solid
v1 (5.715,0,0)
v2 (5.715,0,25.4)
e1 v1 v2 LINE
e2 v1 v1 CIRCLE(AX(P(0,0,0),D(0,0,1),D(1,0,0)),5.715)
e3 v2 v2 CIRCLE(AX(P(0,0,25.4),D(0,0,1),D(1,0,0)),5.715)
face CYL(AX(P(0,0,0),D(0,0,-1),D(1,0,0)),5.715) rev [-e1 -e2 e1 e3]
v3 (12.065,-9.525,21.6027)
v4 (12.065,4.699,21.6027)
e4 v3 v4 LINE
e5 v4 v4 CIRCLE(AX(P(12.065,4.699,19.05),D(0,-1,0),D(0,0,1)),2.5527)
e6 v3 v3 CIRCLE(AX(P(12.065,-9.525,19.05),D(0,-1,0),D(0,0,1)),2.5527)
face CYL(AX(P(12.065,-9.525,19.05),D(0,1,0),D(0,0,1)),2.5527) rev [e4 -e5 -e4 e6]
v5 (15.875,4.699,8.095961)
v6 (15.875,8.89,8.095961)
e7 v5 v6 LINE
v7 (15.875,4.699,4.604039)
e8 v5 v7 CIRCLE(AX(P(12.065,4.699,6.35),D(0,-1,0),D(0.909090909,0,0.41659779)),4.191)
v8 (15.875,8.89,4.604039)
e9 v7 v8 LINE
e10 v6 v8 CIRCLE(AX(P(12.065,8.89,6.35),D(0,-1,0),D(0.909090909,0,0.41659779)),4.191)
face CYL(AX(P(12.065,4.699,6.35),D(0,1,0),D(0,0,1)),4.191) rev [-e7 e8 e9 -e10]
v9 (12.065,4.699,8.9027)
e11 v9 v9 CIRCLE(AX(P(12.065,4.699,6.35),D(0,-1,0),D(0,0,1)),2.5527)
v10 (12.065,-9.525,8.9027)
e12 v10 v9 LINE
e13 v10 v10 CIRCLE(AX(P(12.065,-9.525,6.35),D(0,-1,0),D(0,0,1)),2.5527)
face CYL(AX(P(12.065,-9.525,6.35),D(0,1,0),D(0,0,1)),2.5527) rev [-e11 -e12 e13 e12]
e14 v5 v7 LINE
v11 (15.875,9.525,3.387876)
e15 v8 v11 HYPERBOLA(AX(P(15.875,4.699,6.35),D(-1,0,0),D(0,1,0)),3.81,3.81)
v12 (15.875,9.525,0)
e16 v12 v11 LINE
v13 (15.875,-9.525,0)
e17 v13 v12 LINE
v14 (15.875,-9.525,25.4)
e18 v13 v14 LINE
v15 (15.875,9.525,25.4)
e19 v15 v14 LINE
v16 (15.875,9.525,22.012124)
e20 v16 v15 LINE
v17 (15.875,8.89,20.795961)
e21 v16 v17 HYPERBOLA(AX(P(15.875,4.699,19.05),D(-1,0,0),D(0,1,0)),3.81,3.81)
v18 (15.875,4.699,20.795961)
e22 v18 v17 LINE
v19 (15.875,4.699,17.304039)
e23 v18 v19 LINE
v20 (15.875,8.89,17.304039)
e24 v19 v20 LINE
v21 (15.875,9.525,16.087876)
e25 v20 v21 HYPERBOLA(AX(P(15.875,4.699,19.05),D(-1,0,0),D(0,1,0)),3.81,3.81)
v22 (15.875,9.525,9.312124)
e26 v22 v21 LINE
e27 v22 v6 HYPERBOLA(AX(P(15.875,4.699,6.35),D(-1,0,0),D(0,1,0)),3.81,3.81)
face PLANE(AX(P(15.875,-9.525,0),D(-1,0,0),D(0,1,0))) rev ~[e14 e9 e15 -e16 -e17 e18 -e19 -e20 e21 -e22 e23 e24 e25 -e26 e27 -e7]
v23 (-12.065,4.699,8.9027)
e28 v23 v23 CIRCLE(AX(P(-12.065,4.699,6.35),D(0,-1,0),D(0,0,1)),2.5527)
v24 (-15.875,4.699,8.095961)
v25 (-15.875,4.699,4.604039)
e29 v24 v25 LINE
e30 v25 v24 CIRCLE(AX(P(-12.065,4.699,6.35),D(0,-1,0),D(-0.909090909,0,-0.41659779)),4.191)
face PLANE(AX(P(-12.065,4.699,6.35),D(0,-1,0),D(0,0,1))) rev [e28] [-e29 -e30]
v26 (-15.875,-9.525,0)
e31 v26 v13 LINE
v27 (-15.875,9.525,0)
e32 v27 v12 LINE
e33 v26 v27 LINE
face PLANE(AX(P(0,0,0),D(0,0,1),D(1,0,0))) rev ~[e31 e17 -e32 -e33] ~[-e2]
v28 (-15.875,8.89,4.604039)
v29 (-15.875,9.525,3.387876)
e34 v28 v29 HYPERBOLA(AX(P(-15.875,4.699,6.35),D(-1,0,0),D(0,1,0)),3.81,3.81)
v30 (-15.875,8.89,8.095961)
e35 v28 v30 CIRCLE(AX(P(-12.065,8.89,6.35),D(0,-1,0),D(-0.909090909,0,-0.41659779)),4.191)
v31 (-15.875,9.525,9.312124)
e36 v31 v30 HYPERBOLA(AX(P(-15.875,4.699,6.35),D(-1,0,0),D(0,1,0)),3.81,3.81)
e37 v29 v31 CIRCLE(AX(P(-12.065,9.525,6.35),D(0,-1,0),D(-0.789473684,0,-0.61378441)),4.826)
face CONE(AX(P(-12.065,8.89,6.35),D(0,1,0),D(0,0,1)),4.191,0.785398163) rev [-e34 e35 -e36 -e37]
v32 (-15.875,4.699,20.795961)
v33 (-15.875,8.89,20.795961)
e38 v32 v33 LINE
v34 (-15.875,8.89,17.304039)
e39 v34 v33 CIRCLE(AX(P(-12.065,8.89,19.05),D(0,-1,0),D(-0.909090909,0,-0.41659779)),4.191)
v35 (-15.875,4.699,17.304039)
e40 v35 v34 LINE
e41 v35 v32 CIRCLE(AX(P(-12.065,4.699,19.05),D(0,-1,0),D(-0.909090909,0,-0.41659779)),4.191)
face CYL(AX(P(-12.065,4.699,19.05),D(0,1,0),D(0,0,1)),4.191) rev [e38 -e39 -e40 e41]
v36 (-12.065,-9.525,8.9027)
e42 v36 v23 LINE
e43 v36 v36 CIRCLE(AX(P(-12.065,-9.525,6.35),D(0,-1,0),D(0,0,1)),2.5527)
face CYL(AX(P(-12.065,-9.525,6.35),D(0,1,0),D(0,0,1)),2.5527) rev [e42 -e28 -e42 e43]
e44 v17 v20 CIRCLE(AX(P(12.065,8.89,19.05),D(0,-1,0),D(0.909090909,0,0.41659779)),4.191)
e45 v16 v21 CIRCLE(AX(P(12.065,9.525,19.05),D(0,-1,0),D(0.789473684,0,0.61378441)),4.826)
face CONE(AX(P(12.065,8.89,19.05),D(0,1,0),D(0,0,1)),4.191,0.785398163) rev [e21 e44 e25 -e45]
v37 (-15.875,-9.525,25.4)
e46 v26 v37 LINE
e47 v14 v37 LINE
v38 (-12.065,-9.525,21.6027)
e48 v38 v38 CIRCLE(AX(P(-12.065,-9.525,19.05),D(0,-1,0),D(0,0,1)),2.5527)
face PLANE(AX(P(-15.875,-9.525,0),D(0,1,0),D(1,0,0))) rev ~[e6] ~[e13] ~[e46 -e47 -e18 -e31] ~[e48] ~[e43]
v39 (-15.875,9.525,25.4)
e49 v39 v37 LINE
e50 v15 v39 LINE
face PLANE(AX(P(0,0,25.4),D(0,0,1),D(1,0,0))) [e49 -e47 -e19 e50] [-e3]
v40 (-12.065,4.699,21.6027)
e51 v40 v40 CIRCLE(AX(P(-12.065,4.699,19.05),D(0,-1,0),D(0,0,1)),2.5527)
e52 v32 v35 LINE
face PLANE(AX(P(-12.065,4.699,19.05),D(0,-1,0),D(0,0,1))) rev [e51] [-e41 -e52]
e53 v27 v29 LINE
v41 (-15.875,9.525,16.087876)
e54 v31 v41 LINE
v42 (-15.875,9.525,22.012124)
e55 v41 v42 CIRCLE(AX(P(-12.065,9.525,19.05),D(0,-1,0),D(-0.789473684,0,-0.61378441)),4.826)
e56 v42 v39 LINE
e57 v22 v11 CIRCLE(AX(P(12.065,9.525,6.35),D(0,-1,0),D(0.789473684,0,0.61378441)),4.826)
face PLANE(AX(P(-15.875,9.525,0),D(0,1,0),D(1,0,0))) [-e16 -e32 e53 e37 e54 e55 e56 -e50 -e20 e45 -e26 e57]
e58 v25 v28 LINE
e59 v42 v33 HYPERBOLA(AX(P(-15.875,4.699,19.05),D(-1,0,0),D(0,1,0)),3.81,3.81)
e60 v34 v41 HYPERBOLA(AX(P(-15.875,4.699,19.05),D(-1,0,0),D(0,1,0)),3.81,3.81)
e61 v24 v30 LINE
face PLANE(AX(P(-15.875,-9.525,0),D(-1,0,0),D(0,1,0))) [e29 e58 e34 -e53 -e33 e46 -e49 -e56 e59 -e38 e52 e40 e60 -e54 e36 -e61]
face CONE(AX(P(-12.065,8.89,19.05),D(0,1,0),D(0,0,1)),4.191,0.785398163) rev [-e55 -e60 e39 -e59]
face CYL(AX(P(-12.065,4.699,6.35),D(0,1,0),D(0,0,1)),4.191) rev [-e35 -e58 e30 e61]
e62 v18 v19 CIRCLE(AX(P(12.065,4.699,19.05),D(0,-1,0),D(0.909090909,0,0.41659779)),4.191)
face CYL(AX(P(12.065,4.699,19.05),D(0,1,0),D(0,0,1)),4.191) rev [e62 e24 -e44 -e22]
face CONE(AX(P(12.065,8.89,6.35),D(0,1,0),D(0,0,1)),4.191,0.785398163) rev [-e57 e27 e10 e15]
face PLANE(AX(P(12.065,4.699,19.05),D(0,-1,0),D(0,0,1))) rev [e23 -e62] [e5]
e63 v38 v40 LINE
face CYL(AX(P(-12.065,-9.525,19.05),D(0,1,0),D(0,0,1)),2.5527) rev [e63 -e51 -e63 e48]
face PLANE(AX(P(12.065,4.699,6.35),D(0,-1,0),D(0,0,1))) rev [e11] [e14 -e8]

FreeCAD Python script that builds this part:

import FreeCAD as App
import Part
import Sketcher
from FreeCAD import Vector
Q = App.Units.Quantity

doc = App.newDocument("Part")
body = doc.addObject("PartDesign::Body", "Body")

sketch1 = doc.addObject("Sketcher::SketchObject", "Sketch")
body.addObject(sketch1)
sketch1.AttachmentSupport = (doc.XY_Plane, [""])
sketch1.MapMode = "FlatFace"
sketch1.addGeometry(Part.Circle(Vector(0, 0, 0), Vector(0, 0, 1), 19), False)
sketch1.addGeometry(Part.Circle(Vector(0, 0, 0), Vector(0, 0, 1), 6), False)
sketch1.addConstraint(Sketcher.Constraint("Coincident", 0, 3, -1, 1))
sketch1.addConstraint(Sketcher.Constraint("Coincident", 1, 3, -1, 1))
sketch1.addConstraint(Sketcher.Constraint("Diameter", 0, Q("1.47 in")))
sketch1.addConstraint(Sketcher.Constraint("Diameter", 1, Q("0.45 in")))
pad1 = doc.addObject("PartDesign::Pad", "Pad")
body.addObject(pad1)
pad1.Profile = sketch1
pad1.Length = Q("1 in")

sketch2 = doc.addObject("Sketcher::SketchObject", "Sketch001")
body.addObject(sketch2)
sketch2.AttachmentSupport = (doc.XY_Plane, [""])
sketch2.MapMode = "FlatFace"
sketch2.addGeometry(Part.Circle(Vector(0, 0, 0), Vector(0, 0, 1), 19), False)
sketch2.addGeometry(Part.LineSegment(Vector(16, -10, 0), Vector(-16, -10, 0)), False)
sketch2.addGeometry(Part.LineSegment(Vector(-16, -10, 0), Vector(-16, 10, 0)), False)
sketch2.addGeometry(Part.LineSegment(Vector(-16, 10, 0), Vector(16, 10, 0)), False)
sketch2.addGeometry(Part.LineSegment(Vector(16, 10, 0), Vector(16, -10, 0)), False)
sketch2.addConstraint(Sketcher.Constraint("Coincident", 1, 2, 2, 1))
sketch2.addConstraint(Sketcher.Constraint("Coincident", 2, 2, 3, 1))
sketch2.addConstraint(Sketcher.Constraint("Coincident", 3, 2, 4, 1))
sketch2.addConstraint(Sketcher.Constraint("Coincident", 4, 2, 1, 1))
sketch2.addConstraint(Sketcher.Constraint("Horizontal", 1))
sketch2.addConstraint(Sketcher.Constraint("Vertical", 2))
sketch2.addConstraint(Sketcher.Constraint("Horizontal", 3))
sketch2.addConstraint(Sketcher.Constraint("Vertical", 4))
sketch2.addConstraint(Sketcher.Constraint("Coincident", 0, 3, -1, 1))
sketch2.addConstraint(Sketcher.Constraint("Symmetric", 1, 2, 3, 2, -1, 1))
sketch2.addConstraint(Sketcher.Constraint("Diameter", 0, Q("1.47 in")))
sketch2.addConstraint(Sketcher.Constraint("DistanceX", 1, 2, 1, 1, Q("1.25 in")))
sketch2.addConstraint(Sketcher.Constraint("DistanceY", 2, 1, 2, 2, Q("0.75 in")))
pocket1 = doc.addObject("PartDesign::Pocket", "Pocket")
body.addObject(pocket1)
pocket1.Profile = sketch2
pocket1.Type = "ThroughAll"
pocket1.Reversed = True

sketch3 = doc.addObject("Sketcher::SketchObject", "Sketch002")
body.addObject(sketch3)
sketch3.AttachmentSupport = (doc.YZ_Plane, [""])
sketch3.MapMode = "FlatFace"
sketch3.AttachmentOffset = App.Placement(Vector(0, 0, 0.475 * 25.4), App.Rotation())
sketch3.addGeometry(Part.LineSegment(Vector(-9.5, 6.3, 0), Vector(9.5, 6.3, 0)), False)
sketch3.addGeometry(Part.LineSegment(Vector(9.5, 6.3, 0), Vector(9.5, 11.2, 0)), False)
sketch3.addGeometry(Part.LineSegment(Vector(9.5, 11.2, 0), Vector(8.9, 10.5, 0)), False)
sketch3.addGeometry(Part.LineSegment(Vector(8.9, 10.5, 0), Vector(4.7, 10.5, 0)), False)
sketch3.addGeometry(Part.LineSegment(Vector(4.7, 10.5, 0), Vector(4.7, 8.9, 0)), False)
sketch3.addGeometry(Part.LineSegment(Vector(4.7, 8.9, 0), Vector(-9.5, 8.9, 0)), False)
sketch3.addGeometry(Part.LineSegment(Vector(-9.5, 8.9, 0), Vector(-9.5, 6.3, 0)), False)
sketch3.addGeometry(Part.LineSegment(Vector(9.5, 6.3, 0), Vector(-9.5, 6.3, 0)), True)
sketch3.addConstraint(Sketcher.Constraint("Coincident", 0, 2, 1, 1))
sketch3.addConstraint(Sketcher.Constraint("Coincident", 1, 2, 2, 1))
sketch3.addConstraint(Sketcher.Constraint("Coincident", 2, 2, 3, 1))
sketch3.addConstraint(Sketcher.Constraint("Coincident", 3, 2, 4, 1))
sketch3.addConstraint(Sketcher.Constraint("Coincident", 4, 2, 5, 1))
sketch3.addConstraint(Sketcher.Constraint("Coincident", 5, 2, 6, 1))
sketch3.addConstraint(Sketcher.Constraint("Coincident", 6, 2, 0, 1))
sketch3.addConstraint(Sketcher.Constraint("Horizontal", 0))
sketch3.addConstraint(Sketcher.Constraint("Vertical", 1))
sketch3.addConstraint(Sketcher.Constraint("Horizontal", 3))
sketch3.addConstraint(Sketcher.Constraint("Vertical", 4))
sketch3.addConstraint(Sketcher.Constraint("Horizontal", 5))
sketch3.addConstraint(Sketcher.Constraint("Vertical", 6))
sketch3.addConstraint(Sketcher.Constraint("Horizontal", 7))
sketch3.addConstraint(Sketcher.Constraint("Coincident", 7, 1, 0, 2))
sketch3.addConstraint(Sketcher.Constraint("Vertical", 5, 2, 7, 2))
sketch3.addConstraint(Sketcher.Constraint("Angle", 2, Q("-135 deg")))
sketch3.addConstraint(Sketcher.Constraint("DistanceX", 0, 1, 0, 2, Q("0.75 in")))
sketch3.addConstraint(Sketcher.Constraint("DistanceX", 5, 2, 5, 1, Q("0.56 in")))
sketch3.addConstraint(Sketcher.Constraint("DistanceY", 1, 1, 1, 2, Q("0.19 in")))
sketch3.addConstraint(Sketcher.Constraint("DistanceX", 3, 2, 3, 1, Q("0.165 in")))
sketch3.addConstraint(Sketcher.Constraint("DistanceY", -1, 1, 0, 2, Q("0.25 in")))
sketch3.addConstraint(Sketcher.Constraint("DistanceX", -1, 1, 2, 2, Q("0.35 in")))
sketch3.addConstraint(Sketcher.Constraint("DistanceY", 4, 2, 4, 1, Q("0.0645 in")))
groove = doc.addObject("PartDesign::Groove", "Groove")
body.addObject(groove)
groove.Profile = sketch3
groove.ReferenceAxis = (sketch3, ["Axis0"])
groove.Angle = 360
doc.recompute()

linearpattern = doc.addObject("PartDesign::LinearPattern", "LinearPattern")
body.addObject(linearpattern)
linearpattern.Originals = [groove]
linearpattern.Direction = (doc.Z_Axis, [""])
linearpattern.Mode = "offset"
linearpattern.Offset = Q("0.5 in")
linearpattern.Occurrences = 2
body.Tip = linearpattern
doc.recompute()

datumline = doc.addObject("PartDesign::Line", "DatumLine")
body.addObject(datumline)
datumline.Placement = App.Placement(Vector(0, 0, 0), App.Rotation(Vector(0, 0, 1), Vector(-0.884918222, 0, 0.465746433)))
linearpattern2 = doc.addObject("PartDesign::LinearPattern", "LinearPattern001")
body.addObject(linearpattern2)
linearpattern2.Originals = [groove]
linearpattern2.Direction = (datumline, [""])
linearpattern2.Mode = "offset"
linearpattern2.Offset = 27.268056
linearpattern2.Occurrences = 2
body.Tip = linearpattern2
doc.recompute()

linearpattern3 = doc.addObject("PartDesign::LinearPattern", "LinearPattern002")
body.addObject(linearpattern3)
linearpattern3.Originals = [groove]
linearpattern3.Direction = (doc.X_Axis, [""])
linearpattern3.Mode = "offset"
linearpattern3.Offset = Q("0.95 in")
linearpattern3.Occurrences = 2
linearpattern3.Reversed = True
body.Tip = linearpattern3

doc.recompute()
